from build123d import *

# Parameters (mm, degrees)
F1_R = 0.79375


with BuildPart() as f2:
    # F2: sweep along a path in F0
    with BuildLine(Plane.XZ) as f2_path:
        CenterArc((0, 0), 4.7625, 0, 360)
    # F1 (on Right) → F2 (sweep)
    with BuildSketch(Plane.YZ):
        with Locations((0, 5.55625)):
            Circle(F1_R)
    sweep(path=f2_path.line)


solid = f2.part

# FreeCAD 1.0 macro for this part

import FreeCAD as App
import Part
import Sketcher
from FreeCAD import Vector
Q = App.Units.Quantity

doc = App.newDocument("Part")
body = doc.addObject("PartDesign::Body", "Body")

# Sketch on YZ plane
sketch1 = body.newObject("Sketcher::SketchObject", "Sketch")
sketch1.AttachmentSupport = (doc.getObject("YZ_Plane"), [""])
sketch1.MapMode = "FlatFace"
sketch1.addGeometry(Part.Circle(Vector(0, 5.6, 0), Vector(0, 0, 1), 0.8), False)
sketch1.addConstraint([
    Sketcher.Constraint("PointOnObject", 0, 3, -2),
    Sketcher.Constraint("Diameter", 0, Q("0.0625 in")),
    Sketcher.Constraint("DistanceY", -1, 1, 0, 3, Q("0.21875 in")),
])

# Sketch on XZ plane
sketch2 = body.newObject("Sketcher::SketchObject", "Sketch001")
sketch2.AttachmentSupport = (doc.getObject("XZ_Plane"), [""])
sketch2.MapMode = "FlatFace"
sketch2.addGeometry(Part.Circle(Vector(0, 0, 0), Vector(0, 0, 1), 4.8), False)
sketch2.addConstraint([
    Sketcher.Constraint("Coincident", 0, 3, -1, 1),
    Sketcher.Constraint("Diameter", 0, Q("0.375 in")),
])
doc.recompute()

additivepipe = body.newObject("PartDesign::AdditivePipe", "AdditivePipe")
additivepipe.Profile = sketch1
additivepipe.Spine = (sketch2, ["Edge1"])

doc.recompute()
